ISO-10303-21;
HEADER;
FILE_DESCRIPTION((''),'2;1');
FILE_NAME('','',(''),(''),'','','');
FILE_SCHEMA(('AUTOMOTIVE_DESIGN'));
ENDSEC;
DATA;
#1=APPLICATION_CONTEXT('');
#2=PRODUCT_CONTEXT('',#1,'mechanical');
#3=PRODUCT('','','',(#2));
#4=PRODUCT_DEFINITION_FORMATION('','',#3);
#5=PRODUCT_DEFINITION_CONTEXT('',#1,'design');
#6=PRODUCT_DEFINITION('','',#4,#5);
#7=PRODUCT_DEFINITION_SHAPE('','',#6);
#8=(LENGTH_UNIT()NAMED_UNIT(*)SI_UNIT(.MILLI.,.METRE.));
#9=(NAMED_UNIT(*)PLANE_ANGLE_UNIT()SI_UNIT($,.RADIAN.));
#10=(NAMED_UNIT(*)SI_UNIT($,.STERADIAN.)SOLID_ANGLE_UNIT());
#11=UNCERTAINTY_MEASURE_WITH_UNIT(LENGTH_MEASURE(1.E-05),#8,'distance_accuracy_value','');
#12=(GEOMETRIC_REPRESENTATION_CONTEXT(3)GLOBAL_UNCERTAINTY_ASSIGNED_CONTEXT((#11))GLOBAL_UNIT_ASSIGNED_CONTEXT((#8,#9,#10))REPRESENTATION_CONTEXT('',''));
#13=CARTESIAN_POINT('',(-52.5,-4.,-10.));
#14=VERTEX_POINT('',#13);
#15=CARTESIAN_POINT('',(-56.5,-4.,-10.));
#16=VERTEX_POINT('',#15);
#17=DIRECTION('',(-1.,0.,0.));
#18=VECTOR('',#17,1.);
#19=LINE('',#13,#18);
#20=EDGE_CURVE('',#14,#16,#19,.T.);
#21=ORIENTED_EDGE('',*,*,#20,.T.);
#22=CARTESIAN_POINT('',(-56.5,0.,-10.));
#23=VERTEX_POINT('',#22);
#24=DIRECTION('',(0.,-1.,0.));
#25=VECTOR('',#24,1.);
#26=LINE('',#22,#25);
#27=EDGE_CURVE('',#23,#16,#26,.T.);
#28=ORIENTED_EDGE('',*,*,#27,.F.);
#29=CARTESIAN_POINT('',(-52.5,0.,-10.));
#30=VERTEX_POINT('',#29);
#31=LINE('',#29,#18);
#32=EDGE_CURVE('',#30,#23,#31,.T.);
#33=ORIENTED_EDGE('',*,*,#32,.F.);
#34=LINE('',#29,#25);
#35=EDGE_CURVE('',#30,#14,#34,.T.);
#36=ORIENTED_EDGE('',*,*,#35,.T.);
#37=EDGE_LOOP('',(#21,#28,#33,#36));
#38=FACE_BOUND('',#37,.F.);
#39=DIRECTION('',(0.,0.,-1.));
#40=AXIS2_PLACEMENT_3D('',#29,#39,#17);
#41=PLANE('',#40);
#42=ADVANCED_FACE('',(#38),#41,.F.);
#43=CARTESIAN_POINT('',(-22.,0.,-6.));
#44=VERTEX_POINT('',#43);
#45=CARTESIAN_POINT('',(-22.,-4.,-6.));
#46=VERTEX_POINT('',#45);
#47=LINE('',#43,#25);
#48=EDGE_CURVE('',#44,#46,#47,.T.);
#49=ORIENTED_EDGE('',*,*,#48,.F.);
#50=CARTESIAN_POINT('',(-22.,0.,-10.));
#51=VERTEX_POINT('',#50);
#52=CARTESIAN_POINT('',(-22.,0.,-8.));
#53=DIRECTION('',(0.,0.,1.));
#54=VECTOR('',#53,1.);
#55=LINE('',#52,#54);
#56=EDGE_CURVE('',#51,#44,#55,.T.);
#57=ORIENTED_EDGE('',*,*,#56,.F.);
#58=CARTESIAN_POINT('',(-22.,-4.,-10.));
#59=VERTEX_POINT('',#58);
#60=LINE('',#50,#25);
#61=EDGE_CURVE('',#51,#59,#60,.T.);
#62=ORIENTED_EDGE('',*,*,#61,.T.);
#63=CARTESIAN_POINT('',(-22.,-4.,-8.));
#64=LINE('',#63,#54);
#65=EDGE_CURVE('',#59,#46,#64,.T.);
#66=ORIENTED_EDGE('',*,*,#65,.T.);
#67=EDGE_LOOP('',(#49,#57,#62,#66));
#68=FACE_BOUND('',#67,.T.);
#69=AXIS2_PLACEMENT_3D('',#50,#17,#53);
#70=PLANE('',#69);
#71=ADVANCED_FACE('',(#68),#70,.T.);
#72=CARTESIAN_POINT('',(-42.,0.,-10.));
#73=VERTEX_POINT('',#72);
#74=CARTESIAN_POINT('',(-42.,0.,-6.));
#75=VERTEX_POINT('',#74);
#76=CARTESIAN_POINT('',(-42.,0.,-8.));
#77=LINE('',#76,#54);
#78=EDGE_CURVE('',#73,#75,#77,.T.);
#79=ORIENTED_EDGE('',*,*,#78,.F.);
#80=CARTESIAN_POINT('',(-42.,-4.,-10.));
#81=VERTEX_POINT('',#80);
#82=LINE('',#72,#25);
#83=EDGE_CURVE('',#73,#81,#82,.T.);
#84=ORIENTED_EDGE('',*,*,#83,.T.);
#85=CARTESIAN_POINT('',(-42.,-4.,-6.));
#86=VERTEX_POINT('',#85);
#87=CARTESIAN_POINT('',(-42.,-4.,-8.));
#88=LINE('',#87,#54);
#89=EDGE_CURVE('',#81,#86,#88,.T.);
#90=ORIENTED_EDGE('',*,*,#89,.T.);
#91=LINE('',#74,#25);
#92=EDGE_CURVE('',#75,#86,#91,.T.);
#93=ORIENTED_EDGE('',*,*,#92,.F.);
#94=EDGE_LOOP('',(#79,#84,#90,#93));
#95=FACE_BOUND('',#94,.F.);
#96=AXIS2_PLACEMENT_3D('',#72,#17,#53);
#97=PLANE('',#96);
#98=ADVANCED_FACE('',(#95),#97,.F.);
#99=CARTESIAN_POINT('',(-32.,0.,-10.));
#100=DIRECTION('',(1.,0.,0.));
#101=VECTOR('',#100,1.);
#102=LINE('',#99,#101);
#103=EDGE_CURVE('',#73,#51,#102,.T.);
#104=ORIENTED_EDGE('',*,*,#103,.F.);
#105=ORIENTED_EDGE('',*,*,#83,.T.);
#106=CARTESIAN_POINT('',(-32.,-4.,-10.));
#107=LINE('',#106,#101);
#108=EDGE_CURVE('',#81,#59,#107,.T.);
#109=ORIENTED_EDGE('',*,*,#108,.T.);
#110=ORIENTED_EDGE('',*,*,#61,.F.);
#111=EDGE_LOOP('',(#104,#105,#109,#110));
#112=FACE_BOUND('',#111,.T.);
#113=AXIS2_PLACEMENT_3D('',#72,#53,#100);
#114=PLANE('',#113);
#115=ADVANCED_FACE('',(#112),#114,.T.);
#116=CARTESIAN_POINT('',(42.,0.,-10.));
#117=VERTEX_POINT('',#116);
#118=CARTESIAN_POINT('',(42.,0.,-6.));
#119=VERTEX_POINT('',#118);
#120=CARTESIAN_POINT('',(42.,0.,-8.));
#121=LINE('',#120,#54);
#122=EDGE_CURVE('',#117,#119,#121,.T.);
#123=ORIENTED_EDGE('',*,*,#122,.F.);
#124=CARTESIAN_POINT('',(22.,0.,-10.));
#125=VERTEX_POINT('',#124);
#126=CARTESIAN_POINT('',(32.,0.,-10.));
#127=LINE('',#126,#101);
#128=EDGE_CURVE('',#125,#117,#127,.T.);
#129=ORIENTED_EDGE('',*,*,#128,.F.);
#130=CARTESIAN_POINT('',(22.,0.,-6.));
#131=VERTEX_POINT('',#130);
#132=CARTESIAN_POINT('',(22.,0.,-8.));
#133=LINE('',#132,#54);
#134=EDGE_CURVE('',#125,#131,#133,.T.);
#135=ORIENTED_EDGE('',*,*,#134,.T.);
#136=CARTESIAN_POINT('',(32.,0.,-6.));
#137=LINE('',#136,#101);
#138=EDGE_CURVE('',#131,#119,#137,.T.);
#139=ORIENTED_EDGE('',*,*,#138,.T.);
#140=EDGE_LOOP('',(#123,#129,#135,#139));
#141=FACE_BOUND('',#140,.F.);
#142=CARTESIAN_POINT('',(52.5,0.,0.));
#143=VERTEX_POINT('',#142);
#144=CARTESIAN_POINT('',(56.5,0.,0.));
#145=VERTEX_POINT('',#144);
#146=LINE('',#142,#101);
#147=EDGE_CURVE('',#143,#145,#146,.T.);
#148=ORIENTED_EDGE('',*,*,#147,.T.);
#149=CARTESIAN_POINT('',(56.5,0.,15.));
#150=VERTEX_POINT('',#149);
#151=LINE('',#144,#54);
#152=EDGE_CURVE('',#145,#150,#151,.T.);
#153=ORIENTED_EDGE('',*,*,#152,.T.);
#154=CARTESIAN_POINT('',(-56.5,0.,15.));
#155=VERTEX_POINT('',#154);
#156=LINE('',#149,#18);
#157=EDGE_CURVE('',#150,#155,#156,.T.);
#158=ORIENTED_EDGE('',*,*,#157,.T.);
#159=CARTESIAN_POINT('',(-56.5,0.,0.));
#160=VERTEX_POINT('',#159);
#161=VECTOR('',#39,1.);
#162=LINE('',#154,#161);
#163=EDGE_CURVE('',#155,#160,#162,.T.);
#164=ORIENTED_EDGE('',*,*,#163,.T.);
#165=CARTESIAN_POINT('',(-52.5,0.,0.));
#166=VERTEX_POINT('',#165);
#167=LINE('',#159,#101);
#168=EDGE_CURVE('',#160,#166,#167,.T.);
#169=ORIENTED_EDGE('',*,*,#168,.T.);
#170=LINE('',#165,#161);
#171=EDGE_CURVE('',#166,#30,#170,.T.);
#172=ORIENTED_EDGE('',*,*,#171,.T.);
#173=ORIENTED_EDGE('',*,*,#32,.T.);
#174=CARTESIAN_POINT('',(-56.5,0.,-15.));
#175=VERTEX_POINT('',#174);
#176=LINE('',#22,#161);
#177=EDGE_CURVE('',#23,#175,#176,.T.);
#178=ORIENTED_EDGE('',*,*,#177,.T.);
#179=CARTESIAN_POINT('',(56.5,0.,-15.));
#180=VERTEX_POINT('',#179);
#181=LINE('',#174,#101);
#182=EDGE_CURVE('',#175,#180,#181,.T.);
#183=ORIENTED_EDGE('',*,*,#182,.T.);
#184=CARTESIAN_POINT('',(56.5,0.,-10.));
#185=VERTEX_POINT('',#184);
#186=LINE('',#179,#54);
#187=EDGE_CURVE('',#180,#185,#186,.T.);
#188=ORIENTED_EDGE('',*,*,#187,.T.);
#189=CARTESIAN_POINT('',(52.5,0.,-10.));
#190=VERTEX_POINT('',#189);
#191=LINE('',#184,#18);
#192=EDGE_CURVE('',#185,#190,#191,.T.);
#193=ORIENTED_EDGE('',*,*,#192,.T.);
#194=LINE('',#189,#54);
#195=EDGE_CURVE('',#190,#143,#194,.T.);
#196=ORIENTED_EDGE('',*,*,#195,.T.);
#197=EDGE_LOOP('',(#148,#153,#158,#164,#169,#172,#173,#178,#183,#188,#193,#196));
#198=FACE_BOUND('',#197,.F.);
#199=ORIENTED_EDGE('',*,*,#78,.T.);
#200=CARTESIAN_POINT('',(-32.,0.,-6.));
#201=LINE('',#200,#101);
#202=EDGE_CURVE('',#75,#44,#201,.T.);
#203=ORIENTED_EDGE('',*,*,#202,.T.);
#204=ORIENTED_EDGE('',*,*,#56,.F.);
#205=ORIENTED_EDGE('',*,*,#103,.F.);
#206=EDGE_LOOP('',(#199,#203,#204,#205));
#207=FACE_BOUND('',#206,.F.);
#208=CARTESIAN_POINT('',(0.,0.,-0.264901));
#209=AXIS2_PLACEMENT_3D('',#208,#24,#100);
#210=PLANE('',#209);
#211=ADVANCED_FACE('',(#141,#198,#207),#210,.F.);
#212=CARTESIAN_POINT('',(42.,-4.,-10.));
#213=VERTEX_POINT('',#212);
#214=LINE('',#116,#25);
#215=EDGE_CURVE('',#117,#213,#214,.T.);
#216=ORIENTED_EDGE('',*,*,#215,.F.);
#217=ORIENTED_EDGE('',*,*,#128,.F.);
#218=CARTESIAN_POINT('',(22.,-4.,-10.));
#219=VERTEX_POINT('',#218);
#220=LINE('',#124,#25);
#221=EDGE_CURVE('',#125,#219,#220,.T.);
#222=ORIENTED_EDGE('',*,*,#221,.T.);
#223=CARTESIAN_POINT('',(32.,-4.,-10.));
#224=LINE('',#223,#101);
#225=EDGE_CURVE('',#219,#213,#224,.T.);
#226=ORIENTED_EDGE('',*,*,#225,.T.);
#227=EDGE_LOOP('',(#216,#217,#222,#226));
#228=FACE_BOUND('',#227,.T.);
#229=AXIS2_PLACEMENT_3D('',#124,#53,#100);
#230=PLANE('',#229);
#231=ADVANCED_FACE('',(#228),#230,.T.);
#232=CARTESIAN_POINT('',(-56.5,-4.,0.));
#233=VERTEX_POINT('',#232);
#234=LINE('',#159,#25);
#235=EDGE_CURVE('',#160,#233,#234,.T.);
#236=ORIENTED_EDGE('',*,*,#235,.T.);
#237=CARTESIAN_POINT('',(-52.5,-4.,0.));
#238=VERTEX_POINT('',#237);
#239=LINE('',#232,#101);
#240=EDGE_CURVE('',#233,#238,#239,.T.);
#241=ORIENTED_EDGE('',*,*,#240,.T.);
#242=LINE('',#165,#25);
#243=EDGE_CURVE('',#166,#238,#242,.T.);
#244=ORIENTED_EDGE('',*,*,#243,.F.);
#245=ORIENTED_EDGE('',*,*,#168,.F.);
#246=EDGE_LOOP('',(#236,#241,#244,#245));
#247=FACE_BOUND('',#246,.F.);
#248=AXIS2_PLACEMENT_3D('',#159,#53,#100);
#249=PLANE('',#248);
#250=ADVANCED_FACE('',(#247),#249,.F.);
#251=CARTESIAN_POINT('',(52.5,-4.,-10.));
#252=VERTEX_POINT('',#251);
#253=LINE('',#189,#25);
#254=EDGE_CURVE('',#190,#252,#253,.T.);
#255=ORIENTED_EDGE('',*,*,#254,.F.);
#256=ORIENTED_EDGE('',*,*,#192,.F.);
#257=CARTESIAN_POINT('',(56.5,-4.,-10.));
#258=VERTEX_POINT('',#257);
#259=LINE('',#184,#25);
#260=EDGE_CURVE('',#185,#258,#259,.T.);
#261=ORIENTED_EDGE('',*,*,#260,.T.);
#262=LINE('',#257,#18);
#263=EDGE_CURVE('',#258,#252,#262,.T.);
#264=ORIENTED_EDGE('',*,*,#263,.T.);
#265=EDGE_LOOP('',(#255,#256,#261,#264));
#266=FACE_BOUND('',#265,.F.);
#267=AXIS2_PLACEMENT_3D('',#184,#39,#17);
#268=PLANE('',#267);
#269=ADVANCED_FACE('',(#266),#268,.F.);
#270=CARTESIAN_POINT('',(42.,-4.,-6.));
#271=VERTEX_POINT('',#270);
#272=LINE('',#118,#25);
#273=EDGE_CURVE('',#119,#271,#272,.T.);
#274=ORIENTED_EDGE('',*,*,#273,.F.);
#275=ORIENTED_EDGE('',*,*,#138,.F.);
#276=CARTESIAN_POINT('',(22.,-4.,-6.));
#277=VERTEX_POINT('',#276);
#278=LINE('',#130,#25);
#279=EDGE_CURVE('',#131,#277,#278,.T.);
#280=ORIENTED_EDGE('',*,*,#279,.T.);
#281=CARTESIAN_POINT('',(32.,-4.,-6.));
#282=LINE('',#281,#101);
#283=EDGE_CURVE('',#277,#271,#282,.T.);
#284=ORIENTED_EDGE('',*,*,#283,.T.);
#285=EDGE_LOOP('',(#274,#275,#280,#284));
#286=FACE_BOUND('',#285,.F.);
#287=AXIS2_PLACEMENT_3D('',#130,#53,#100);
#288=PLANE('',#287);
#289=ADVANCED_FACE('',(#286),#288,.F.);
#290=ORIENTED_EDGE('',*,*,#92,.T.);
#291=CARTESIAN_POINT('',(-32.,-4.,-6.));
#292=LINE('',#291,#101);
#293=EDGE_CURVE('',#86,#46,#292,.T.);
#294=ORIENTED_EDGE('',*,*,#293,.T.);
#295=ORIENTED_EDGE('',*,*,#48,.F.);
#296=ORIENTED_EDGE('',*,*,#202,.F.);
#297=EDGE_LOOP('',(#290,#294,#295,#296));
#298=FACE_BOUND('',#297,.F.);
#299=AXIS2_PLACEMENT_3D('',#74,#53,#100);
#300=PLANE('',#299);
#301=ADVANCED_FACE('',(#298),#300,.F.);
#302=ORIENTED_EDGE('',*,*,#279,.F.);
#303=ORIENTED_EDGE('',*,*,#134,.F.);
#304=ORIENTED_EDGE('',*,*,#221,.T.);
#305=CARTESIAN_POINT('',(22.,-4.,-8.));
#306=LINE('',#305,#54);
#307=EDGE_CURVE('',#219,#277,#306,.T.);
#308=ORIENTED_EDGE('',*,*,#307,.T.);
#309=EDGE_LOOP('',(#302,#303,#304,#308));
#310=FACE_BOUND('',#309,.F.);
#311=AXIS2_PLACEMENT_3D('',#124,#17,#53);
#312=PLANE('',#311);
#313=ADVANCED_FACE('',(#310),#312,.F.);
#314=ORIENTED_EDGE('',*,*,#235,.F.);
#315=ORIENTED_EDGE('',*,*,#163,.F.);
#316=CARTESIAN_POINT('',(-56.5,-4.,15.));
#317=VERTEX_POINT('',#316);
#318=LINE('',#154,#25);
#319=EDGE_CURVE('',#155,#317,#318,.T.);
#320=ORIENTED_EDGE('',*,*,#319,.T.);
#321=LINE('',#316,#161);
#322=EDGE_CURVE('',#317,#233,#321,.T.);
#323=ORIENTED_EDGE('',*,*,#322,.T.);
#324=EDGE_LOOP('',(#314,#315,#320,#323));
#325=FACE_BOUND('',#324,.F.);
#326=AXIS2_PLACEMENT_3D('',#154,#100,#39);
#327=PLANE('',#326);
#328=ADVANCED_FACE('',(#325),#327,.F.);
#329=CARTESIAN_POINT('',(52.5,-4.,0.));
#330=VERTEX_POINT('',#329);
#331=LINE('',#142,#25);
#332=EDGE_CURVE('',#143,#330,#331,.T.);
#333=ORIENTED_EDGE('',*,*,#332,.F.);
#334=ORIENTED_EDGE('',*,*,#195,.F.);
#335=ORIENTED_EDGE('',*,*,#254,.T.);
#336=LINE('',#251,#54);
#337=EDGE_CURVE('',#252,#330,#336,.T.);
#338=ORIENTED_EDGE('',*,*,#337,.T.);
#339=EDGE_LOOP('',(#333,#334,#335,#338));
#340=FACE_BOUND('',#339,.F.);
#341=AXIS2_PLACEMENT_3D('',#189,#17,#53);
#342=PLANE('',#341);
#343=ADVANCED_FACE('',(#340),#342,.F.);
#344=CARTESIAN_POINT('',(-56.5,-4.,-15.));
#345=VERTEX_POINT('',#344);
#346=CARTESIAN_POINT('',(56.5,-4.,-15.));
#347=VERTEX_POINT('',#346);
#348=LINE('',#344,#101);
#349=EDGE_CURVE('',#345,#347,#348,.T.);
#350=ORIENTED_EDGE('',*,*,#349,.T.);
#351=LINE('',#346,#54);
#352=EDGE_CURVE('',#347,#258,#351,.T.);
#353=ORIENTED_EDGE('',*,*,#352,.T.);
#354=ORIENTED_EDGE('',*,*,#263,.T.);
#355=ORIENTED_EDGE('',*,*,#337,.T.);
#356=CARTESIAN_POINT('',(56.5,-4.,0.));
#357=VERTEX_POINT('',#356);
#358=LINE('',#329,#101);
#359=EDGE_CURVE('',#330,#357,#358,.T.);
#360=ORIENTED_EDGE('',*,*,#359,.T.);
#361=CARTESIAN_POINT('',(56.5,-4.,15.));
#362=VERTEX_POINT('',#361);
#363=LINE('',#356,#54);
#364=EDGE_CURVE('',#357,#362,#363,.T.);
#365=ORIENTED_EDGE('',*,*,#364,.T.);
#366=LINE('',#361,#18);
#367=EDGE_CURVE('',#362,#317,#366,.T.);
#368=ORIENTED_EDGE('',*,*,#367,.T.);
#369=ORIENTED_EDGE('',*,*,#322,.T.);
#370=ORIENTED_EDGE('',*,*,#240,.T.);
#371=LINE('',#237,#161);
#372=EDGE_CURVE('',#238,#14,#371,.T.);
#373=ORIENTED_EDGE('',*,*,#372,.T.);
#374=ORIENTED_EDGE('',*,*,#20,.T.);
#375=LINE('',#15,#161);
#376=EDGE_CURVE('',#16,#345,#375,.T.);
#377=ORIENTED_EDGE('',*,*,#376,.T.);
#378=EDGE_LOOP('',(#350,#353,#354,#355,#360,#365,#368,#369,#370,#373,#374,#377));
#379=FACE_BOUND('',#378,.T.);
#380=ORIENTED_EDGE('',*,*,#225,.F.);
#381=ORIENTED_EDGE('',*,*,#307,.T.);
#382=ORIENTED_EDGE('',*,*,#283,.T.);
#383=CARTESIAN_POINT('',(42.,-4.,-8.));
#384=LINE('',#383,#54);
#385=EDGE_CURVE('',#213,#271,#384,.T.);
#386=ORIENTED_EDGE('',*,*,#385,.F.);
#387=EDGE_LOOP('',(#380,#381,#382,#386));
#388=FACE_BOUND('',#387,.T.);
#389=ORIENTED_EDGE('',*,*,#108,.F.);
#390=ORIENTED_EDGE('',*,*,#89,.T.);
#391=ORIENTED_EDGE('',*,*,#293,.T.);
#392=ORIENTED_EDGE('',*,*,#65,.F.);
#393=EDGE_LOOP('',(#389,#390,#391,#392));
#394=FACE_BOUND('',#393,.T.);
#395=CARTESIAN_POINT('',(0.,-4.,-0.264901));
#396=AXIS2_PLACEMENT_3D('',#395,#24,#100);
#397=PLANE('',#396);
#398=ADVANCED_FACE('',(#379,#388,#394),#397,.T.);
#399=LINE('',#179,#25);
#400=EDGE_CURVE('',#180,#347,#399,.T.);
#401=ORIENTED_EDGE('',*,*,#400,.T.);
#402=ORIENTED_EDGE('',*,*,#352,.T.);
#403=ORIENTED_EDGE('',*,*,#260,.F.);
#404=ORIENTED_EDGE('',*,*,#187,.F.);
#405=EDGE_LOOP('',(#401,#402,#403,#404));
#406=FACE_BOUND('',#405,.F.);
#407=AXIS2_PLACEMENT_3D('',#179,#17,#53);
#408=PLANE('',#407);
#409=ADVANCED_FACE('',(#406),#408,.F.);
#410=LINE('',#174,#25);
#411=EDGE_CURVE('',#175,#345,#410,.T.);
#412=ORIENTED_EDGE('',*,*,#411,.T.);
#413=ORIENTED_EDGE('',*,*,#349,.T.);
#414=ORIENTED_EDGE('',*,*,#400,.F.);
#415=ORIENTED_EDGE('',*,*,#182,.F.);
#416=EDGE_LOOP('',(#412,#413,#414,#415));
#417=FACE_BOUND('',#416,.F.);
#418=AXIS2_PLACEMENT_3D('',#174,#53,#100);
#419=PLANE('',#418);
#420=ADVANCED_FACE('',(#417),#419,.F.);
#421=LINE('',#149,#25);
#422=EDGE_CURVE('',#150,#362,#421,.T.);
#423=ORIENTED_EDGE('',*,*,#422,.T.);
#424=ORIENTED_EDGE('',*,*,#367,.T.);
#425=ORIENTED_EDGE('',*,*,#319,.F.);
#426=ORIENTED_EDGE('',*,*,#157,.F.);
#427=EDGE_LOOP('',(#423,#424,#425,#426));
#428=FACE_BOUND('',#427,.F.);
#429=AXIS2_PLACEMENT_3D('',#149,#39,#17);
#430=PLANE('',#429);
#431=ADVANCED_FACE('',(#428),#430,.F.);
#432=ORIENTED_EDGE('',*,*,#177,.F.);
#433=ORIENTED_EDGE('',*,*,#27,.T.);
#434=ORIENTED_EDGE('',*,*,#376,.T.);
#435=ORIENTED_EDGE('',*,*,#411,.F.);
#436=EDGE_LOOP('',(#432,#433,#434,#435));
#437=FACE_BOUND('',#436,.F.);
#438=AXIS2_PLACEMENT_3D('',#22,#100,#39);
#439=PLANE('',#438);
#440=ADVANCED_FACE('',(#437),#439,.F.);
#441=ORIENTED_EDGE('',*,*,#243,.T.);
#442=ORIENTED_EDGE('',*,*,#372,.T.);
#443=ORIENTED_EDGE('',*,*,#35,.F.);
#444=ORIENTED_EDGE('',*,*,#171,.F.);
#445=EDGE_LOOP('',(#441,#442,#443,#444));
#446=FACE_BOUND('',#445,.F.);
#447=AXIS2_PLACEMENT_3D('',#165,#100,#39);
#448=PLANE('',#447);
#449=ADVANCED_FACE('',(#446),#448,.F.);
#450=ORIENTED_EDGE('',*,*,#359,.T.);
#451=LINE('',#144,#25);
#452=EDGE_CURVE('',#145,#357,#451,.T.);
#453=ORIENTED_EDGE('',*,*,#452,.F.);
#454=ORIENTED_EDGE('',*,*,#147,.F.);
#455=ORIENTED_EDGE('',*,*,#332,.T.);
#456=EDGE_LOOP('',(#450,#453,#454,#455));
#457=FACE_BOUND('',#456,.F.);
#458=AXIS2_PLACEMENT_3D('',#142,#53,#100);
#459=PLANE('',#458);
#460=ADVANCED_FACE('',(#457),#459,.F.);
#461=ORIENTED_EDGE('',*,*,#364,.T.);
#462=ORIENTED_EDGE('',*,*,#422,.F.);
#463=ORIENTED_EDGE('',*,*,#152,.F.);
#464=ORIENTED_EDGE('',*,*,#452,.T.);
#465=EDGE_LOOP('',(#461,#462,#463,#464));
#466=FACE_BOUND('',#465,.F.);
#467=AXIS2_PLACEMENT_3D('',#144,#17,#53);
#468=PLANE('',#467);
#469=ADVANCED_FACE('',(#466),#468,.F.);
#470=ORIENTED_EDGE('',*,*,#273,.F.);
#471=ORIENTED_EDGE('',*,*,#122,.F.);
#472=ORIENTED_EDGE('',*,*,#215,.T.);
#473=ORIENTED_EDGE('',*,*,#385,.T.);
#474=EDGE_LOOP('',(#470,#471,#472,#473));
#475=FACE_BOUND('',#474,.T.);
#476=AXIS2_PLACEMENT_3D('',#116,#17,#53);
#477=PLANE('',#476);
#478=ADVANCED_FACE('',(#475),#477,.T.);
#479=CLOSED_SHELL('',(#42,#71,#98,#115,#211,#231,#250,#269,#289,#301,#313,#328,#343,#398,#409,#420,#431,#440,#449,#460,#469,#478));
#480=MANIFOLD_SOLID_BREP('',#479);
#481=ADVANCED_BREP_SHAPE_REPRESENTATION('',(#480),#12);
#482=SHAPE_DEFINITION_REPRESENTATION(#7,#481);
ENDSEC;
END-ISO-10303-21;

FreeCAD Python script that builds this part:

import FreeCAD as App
import Part
import Sketcher

V = App.Vector

doc = App.newDocument("Part")
body = doc.addObject("PartDesign::Body", "Body")

# Sketch on XZ plane
sketch1 = doc.addObject("Sketcher::SketchObject", "Sketch")
body.addObject(sketch1)
sketch1.AttachmentSupport = (doc.XZ_Plane, [""])
sketch1.MapMode = "FlatFace"
sketch1.addGeometry([
    Part.LineSegment(V(56.5, 0, 0), V(56.5, 15, 0)),  # 0
    Part.LineSegment(V(56.5, 15, 0), V(-56.5, 15, 0)),  # 1
    Part.LineSegment(V(-56.5, 15, 0), V(-56.5, 0, 0)),  # 2
    Part.LineSegment(V(-56.5, 0, 0), V(-52.5, 0, 0)),  # 3
    Part.LineSegment(V(-52.5, 0, 0), V(-52.5, -10, 0)),  # 4
    Part.LineSegment(V(-52.5, -10, 0), V(-56.5, -10, 0)),  # 5
    Part.LineSegment(V(-56.5, -10, 0), V(-56.5, -15, 0)),  # 6
    Part.LineSegment(V(-56.5, -15, 0), V(56.5, -15, 0)),  # 7
    Part.LineSegment(V(56.5, -15, 0), V(56.5, -10, 0)),  # 8
    Part.LineSegment(V(56.5, -10, 0), V(52.5, -10, 0)),  # 9
    Part.LineSegment(V(52.5, -10, 0), V(52.5, 0, 0)),  # 10
    Part.LineSegment(V(52.5, 0, 0), V(56.5, 0, 0)),  # 11
    Part.LineSegment(V(-22, -10, 0), V(-42, -10, 0)),  # 12
    Part.LineSegment(V(-42, -10, 0), V(-42, -6, 0)),  # 13
    Part.LineSegment(V(-42, -6, 0), V(-22, -6, 0)),  # 14
    Part.LineSegment(V(-22, -6, 0), V(-22, -10, 0)),  # 15
    Part.LineSegment(V(42, -10, 0), V(22, -10, 0)),  # 16
    Part.LineSegment(V(22, -10, 0), V(22, -6, 0)),  # 17
    Part.LineSegment(V(22, -6, 0), V(42, -6, 0)),  # 18
    Part.LineSegment(V(42, -6, 0), V(42, -10, 0)),  # 19
], False)
sketch1.addConstraint([
    Sketcher.Constraint("Coincident", 0, 2, 1, 1),
    Sketcher.Constraint("Coincident", 1, 2, 2, 1),
    Sketcher.Constraint("Coincident", 2, 2, 3, 1),
    Sketcher.Constraint("Coincident", 3, 2, 4, 1),
    Sketcher.Constraint("Coincident", 4, 2, 5, 1),
    Sketcher.Constraint("Coincident", 5, 2, 6, 1),
    Sketcher.Constraint("Coincident", 6, 2, 7, 1),
    Sketcher.Constraint("Coincident", 7, 2, 8, 1),
    Sketcher.Constraint("Coincident", 8, 2, 9, 1),
    Sketcher.Constraint("Coincident", 9, 2, 10, 1),
    Sketcher.Constraint("Coincident", 10, 2, 11, 1),
    Sketcher.Constraint("Coincident", 11, 2, 0, 1),
    Sketcher.Constraint("Coincident", 12, 2, 13, 1),
    Sketcher.Constraint("Coincident", 13, 2, 14, 1),
    Sketcher.Constraint("Coincident", 14, 2, 15, 1),
    Sketcher.Constraint("Coincident", 15, 2, 12, 1),
    Sketcher.Constraint("Coincident", 16, 2, 17, 1),
    Sketcher.Constraint("Coincident", 17, 2, 18, 1),
    Sketcher.Constraint("Coincident", 18, 2, 19, 1),
    Sketcher.Constraint("Coincident", 19, 2, 16, 1),
    Sketcher.Constraint("Vertical", 0),
    Sketcher.Constraint("Horizontal", 1),
    Sketcher.Constraint("Vertical", 2),
    Sketcher.Constraint("Horizontal", 3),
    Sketcher.Constraint("Vertical", 4),
    Sketcher.Constraint("Horizontal", 5),
    Sketcher.Constraint("Vertical", 6),
    Sketcher.Constraint("Horizontal", 7),
    Sketcher.Constraint("Vertical", 8),
    Sketcher.Constraint("Horizontal", 9),
    Sketcher.Constraint("Vertical", 10),
    Sketcher.Constraint("Horizontal", 11),
    Sketcher.Constraint("Horizontal", 12),
    Sketcher.Constraint("Vertical", 13),
    Sketcher.Constraint("Horizontal", 14),
    Sketcher.Constraint("Vertical", 15),
    Sketcher.Constraint("Horizontal", 16),
    Sketcher.Constraint("Vertical", 17),
    Sketcher.Constraint("Horizontal", 18),
    Sketcher.Constraint("Vertical", 19),
    Sketcher.Constraint("Symmetric", 0, 2, 6, 2, -1, 1),
    Sketcher.Constraint("Symmetric", 3, 2, 10, 2, -1, 1),
    Sketcher.Constraint("Symmetric", 5, 2, 8, 2, -2),
    Sketcher.Constraint("Symmetric", 2, 2, 11, 2, -2),
    Sketcher.Constraint("Symmetric", 15, 2, 16, 2, -2),
    Sketcher.Constraint("Symmetric", 13, 2, 18, 2, -2),
    Sketcher.Constraint("Horizontal", 9, 2, 12, 2),
    Sketcher.Constraint("Equal", 11, 13),
    Sketcher.Constraint("DistanceX", 1, 2, 1, 1, 113.0),
    Sketcher.Constraint("DistanceX", 3, 1, 3, 2, 4.0),
    Sketcher.Constraint("DistanceX", 12, 2, 12, 1, 20.0),
    Sketcher.Constraint("DistanceY", 0, 1, 0, 2, 15.0),
    Sketcher.Constraint("DistanceY", 4, 2, 4, 1, 10.0),
    Sketcher.Constraint("DistanceX", 12, 2, -1, 1, 42.0),
])
pad1 = doc.addObject("PartDesign::Pad", "Pad")
body.addObject(pad1)
pad1.Profile = sketch1
pad1.Length = 4

doc.recompute()
